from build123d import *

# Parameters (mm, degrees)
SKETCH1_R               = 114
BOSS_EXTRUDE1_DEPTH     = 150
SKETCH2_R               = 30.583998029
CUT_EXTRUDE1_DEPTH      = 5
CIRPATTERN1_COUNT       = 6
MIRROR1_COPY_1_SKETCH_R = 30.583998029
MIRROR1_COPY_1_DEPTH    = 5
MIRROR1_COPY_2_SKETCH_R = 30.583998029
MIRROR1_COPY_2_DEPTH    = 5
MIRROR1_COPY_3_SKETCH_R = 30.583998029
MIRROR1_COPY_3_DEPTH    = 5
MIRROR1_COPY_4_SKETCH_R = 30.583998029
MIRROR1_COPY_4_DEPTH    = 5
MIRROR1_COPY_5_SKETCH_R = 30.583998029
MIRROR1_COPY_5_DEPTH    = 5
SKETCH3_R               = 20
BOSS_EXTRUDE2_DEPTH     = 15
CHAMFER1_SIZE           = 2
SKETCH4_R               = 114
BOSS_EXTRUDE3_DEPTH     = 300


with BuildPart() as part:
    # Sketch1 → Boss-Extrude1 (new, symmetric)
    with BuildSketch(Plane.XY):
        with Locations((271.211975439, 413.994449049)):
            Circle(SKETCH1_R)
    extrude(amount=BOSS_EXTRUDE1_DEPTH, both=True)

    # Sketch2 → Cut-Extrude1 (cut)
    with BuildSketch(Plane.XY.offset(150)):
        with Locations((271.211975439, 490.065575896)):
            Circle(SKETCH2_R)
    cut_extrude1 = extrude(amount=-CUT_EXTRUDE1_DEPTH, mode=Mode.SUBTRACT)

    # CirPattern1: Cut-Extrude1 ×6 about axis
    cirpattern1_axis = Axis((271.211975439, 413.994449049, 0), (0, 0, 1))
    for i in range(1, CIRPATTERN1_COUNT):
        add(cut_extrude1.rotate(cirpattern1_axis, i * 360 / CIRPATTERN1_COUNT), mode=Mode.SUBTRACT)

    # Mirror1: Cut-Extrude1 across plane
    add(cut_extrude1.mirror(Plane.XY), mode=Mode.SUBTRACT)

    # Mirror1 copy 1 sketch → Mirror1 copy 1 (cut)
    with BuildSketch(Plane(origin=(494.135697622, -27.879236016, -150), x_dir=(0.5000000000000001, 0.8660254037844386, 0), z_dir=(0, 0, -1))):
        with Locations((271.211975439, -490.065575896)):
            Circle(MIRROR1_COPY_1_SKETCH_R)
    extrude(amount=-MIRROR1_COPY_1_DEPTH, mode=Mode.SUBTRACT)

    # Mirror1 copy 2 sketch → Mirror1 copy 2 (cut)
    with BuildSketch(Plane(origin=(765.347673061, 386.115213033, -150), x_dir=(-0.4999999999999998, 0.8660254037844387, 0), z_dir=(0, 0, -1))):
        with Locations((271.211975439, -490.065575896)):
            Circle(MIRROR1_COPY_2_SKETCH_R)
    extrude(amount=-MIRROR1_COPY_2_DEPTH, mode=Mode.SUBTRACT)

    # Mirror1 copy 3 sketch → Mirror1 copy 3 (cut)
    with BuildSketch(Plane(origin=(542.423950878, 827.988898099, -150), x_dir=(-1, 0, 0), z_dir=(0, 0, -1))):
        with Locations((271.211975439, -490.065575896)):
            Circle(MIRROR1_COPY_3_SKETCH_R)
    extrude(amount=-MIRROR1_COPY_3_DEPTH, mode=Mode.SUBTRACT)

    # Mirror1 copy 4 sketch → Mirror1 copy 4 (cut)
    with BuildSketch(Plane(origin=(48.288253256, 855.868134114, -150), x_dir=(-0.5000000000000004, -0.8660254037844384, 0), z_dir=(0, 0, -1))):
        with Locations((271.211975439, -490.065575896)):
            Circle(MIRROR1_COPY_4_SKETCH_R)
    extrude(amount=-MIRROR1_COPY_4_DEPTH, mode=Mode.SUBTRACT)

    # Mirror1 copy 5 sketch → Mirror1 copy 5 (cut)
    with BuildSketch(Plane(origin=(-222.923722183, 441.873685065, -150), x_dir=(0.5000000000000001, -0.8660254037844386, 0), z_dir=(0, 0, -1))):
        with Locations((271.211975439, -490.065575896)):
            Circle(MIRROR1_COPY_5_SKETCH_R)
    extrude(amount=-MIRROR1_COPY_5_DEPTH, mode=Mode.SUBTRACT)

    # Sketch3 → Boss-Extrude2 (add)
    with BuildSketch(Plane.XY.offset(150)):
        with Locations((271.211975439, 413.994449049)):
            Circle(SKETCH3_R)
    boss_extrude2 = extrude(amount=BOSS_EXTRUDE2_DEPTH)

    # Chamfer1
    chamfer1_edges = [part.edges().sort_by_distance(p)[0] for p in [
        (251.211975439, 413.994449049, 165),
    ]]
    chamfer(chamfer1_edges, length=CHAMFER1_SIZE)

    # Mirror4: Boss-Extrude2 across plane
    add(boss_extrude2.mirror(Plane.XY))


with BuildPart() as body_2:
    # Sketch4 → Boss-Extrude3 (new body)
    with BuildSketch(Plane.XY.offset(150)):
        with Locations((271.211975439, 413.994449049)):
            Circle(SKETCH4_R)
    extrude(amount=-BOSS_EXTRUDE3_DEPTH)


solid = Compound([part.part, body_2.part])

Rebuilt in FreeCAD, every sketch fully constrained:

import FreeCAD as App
import Part
import Sketcher

V = App.Vector
Q = App.Units.Quantity


def edges_at(feature, points):
    """Names of the edges that pass closest to the given points."""
    edges = feature.Shape.Edges
    near = lambda p: min(range(len(edges)), key=lambda i: edges[i].distToShape(Part.Vertex(*p))[0])
    return sorted({f"Edge{near(p) + 1}" for p in points})

doc = App.newDocument("Part")
body = doc.addObject("PartDesign::Body", "Body")

# Sketch on XY plane
sketch1 = body.newObject("Sketcher::SketchObject", "Sketch")
sketch1.AttachmentSupport = (doc.getObject("XY_Plane"), [""])
sketch1.MapMode = "FlatFace"
sketch1.addGeometry(Part.Circle(V(271, 414, 0), V(0, 0, 1), 114), False)
sketch1.addConstraint(Sketcher.Constraint("Diameter", 0, Q("228 mm")))
sketch1.addConstraint(Sketcher.Constraint("DistanceY", -1, 1, 0, 3, Q("413.994449 mm")))
sketch1.addConstraint(Sketcher.Constraint("DistanceX", -1, 1, 0, 3, Q("271.211975 mm")))
pad1 = body.newObject("PartDesign::Pad", "Pad")
pad1.Profile = sketch1
pad1.Length = 300
pad1.Midplane = True

# Sketch on XY plane
sketch2 = body.newObject("Sketcher::SketchObject", "Sketch001")
sketch2.AttachmentSupport = (doc.getObject("XY_Plane"), [""])
sketch2.MapMode = "FlatFace"
sketch2.AttachmentOffset = App.Placement(V(0, 0, 150), App.Rotation())
sketch2.addGeometry(Part.Circle(V(271, 490, 0), V(0, 0, 1), 31), False)
sketch2.addConstraint(Sketcher.Constraint("Diameter", 0, Q("61.167996 mm")))
sketch2.addConstraint(Sketcher.Constraint("DistanceX", -1, 1, 0, 3, Q("271.211975 mm")))
sketch2.addConstraint(Sketcher.Constraint("DistanceY", -1, 1, 0, 3, Q("490.065576 mm")))
pocket1 = body.newObject("PartDesign::Pocket", "Pocket")
pocket1.Profile = sketch2
pocket1.Length = 5
doc.recompute()

datumline = body.newObject("PartDesign::Line", "DatumLine")
datumline.Placement = App.Placement(V(271.211975, 413.994449, 0), App.Rotation(V(0, 0, 1), V(0, 0, 1)))
polarpattern = body.newObject("PartDesign::PolarPattern", "PolarPattern")
polarpattern.Originals = [pocket1]
polarpattern.Axis = (datumline, [""])
polarpattern.Angle = 360
polarpattern.Occurrences = 6
body.Tip = polarpattern
doc.recompute()

mirrored = body.newObject("PartDesign::Mirrored", "Mirrored")
mirrored.Originals = [pocket1]
mirrored.MirrorPlane = (doc.getObject("XY_Plane"), [""])
body.Tip = mirrored

# Sketch on XY plane
sketch3 = body.newObject("Sketcher::SketchObject", "Sketch002")
sketch3.AttachmentSupport = (doc.getObject("XY_Plane"), [""])
sketch3.MapMode = "FlatFace"
sketch3.AttachmentOffset = App.Placement(V(0, 0, -150), App.Rotation())
sketch3.addGeometry(Part.Circle(V(205, 452, 0), V(0, 0, 1), 31), False)
sketch3.addConstraint(Sketcher.Constraint("Diameter", 0, Q("61.167996 mm")))
sketch3.addConstraint(Sketcher.Constraint("DistanceX", -1, 1, 0, 3, Q("205.332447 mm")))
sketch3.addConstraint(Sketcher.Constraint("DistanceY", -1, 1, 0, 3, Q("452.030013 mm")))
pocket2 = body.newObject("PartDesign::Pocket", "Pocket001")
pocket2.Profile = sketch3
pocket2.Length = 5
pocket2.Reversed = True

# Sketch on XY plane
sketch4 = body.newObject("Sketcher::SketchObject", "Sketch003")
sketch4.AttachmentSupport = (doc.getObject("XY_Plane"), [""])
sketch4.MapMode = "FlatFace"
sketch4.AttachmentOffset = App.Placement(V(0, 0, -150), App.Rotation())
sketch4.addGeometry(Part.Circle(V(205, 376, 0), V(0, 0, 1), 31), False)
sketch4.addConstraint(Sketcher.Constraint("Diameter", 0, Q("61.167996 mm")))
sketch4.addConstraint(Sketcher.Constraint("DistanceX", -1, 1, 0, 3, Q("205.332447 mm")))
sketch4.addConstraint(Sketcher.Constraint("DistanceY", -1, 1, 0, 3, Q("375.958886 mm")))
pocket3 = body.newObject("PartDesign::Pocket", "Pocket002")
pocket3.Profile = sketch4
pocket3.Length = 5
pocket3.Reversed = True

# Sketch on XY plane
sketch5 = body.newObject("Sketcher::SketchObject", "Sketch004")
sketch5.AttachmentSupport = (doc.getObject("XY_Plane"), [""])
sketch5.MapMode = "FlatFace"
sketch5.AttachmentOffset = App.Placement(V(0, 0, -150), App.Rotation())
sketch5.addGeometry(Part.Circle(V(271, 338, 0), V(0, 0, 1), 31), False)
sketch5.addConstraint(Sketcher.Constraint("Diameter", 0, Q("61.167996 mm")))
sketch5.addConstraint(Sketcher.Constraint("DistanceX", -1, 1, 0, 3, Q("271.211975 mm")))
sketch5.addConstraint(Sketcher.Constraint("DistanceY", -1, 1, 0, 3, Q("337.923322 mm")))
pocket4 = body.newObject("PartDesign::Pocket", "Pocket003")
pocket4.Profile = sketch5
pocket4.Length = 5
pocket4.Reversed = True

# Sketch on XY plane
sketch6 = body.newObject("Sketcher::SketchObject", "Sketch005")
sketch6.AttachmentSupport = (doc.getObject("XY_Plane"), [""])
sketch6.MapMode = "FlatFace"
sketch6.AttachmentOffset = App.Placement(V(0, 0, -150), App.Rotation())
sketch6.addGeometry(Part.Circle(V(337, 376, 0), V(0, 0, 1), 31), False)
sketch6.addConstraint(Sketcher.Constraint("Diameter", 0, Q("61.167996 mm")))
sketch6.addConstraint(Sketcher.Constraint("DistanceX", -1, 1, 0, 3, Q("337.091504 mm")))
sketch6.addConstraint(Sketcher.Constraint("DistanceY", -1, 1, 0, 3, Q("375.958886 mm")))
pocket5 = body.newObject("PartDesign::Pocket", "Pocket004")
pocket5.Profile = sketch6
pocket5.Length = 5
pocket5.Reversed = True

# Sketch on XY plane
sketch7 = body.newObject("Sketcher::SketchObject", "Sketch006")
sketch7.AttachmentSupport = (doc.getObject("XY_Plane"), [""])
sketch7.MapMode = "FlatFace"
sketch7.AttachmentOffset = App.Placement(V(0, 0, -150), App.Rotation())
sketch7.addGeometry(Part.Circle(V(337, 452, 0), V(0, 0, 1), 31), False)
sketch7.addConstraint(Sketcher.Constraint("Diameter", 0, Q("61.167996 mm")))
sketch7.addConstraint(Sketcher.Constraint("DistanceX", -1, 1, 0, 3, Q("337.091504 mm")))
sketch7.addConstraint(Sketcher.Constraint("DistanceY", -1, 1, 0, 3, Q("452.030012 mm")))
pocket6 = body.newObject("PartDesign::Pocket", "Pocket005")
pocket6.Profile = sketch7
pocket6.Length = 5
pocket6.Reversed = True

# Sketch on XY plane
sketch8 = body.newObject("Sketcher::SketchObject", "Sketch007")
sketch8.AttachmentSupport = (doc.getObject("XY_Plane"), [""])
sketch8.MapMode = "FlatFace"
sketch8.AttachmentOffset = App.Placement(V(0, 0, 150), App.Rotation())
sketch8.addGeometry(Part.Circle(V(271, 414, 0), V(0, 0, 1), 20), False)
sketch8.addConstraint(Sketcher.Constraint("Diameter", 0, Q("40 mm")))
sketch8.addConstraint(Sketcher.Constraint("DistanceY", -1, 1, 0, 3, Q("413.994449 mm")))
sketch8.addConstraint(Sketcher.Constraint("DistanceX", -1, 1, 0, 3, Q("271.211975 mm")))
pad2 = body.newObject("PartDesign::Pad", "Pad001")
pad2.Profile = sketch8
pad2.Length = 15
doc.recompute()

chamfer = body.newObject("PartDesign::Chamfer", "Chamfer")
chamfer.Base = (pad2, edges_at(pad2, [(251.212, 413.994, 165)]))
chamfer.Size = 2
doc.recompute()

mirrored2 = body.newObject("PartDesign::Mirrored", "Mirrored001")
mirrored2.Originals = [pad2]
mirrored2.MirrorPlane = (doc.getObject("XY_Plane"), [""])
body.Tip = mirrored2
body2 = doc.addObject("PartDesign::Body", "Body001")

# Sketch on XY plane
sketch9 = body2.newObject("Sketcher::SketchObject", "Sketch008")
sketch9.AttachmentSupport = (doc.getObject("XY_Plane001"), [""])
sketch9.MapMode = "FlatFace"
sketch9.AttachmentOffset = App.Placement(V(0, 0, 150), App.Rotation())
sketch9.addGeometry(Part.Circle(V(271, 414, 0), V(0, 0, 1), 114), False)
sketch9.addConstraint(Sketcher.Constraint("Diameter", 0, Q("228 mm")))
sketch9.addConstraint(Sketcher.Constraint("DistanceY", -1, 1, 0, 3, Q("413.994449 mm")))
sketch9.addConstraint(Sketcher.Constraint("DistanceX", -1, 1, 0, 3, Q("271.211975 mm")))
pad3 = body2.newObject("PartDesign::Pad", "Pad002")
pad3.Profile = sketch9
pad3.Length = 300
pad3.Reversed = True

doc.recompute()
